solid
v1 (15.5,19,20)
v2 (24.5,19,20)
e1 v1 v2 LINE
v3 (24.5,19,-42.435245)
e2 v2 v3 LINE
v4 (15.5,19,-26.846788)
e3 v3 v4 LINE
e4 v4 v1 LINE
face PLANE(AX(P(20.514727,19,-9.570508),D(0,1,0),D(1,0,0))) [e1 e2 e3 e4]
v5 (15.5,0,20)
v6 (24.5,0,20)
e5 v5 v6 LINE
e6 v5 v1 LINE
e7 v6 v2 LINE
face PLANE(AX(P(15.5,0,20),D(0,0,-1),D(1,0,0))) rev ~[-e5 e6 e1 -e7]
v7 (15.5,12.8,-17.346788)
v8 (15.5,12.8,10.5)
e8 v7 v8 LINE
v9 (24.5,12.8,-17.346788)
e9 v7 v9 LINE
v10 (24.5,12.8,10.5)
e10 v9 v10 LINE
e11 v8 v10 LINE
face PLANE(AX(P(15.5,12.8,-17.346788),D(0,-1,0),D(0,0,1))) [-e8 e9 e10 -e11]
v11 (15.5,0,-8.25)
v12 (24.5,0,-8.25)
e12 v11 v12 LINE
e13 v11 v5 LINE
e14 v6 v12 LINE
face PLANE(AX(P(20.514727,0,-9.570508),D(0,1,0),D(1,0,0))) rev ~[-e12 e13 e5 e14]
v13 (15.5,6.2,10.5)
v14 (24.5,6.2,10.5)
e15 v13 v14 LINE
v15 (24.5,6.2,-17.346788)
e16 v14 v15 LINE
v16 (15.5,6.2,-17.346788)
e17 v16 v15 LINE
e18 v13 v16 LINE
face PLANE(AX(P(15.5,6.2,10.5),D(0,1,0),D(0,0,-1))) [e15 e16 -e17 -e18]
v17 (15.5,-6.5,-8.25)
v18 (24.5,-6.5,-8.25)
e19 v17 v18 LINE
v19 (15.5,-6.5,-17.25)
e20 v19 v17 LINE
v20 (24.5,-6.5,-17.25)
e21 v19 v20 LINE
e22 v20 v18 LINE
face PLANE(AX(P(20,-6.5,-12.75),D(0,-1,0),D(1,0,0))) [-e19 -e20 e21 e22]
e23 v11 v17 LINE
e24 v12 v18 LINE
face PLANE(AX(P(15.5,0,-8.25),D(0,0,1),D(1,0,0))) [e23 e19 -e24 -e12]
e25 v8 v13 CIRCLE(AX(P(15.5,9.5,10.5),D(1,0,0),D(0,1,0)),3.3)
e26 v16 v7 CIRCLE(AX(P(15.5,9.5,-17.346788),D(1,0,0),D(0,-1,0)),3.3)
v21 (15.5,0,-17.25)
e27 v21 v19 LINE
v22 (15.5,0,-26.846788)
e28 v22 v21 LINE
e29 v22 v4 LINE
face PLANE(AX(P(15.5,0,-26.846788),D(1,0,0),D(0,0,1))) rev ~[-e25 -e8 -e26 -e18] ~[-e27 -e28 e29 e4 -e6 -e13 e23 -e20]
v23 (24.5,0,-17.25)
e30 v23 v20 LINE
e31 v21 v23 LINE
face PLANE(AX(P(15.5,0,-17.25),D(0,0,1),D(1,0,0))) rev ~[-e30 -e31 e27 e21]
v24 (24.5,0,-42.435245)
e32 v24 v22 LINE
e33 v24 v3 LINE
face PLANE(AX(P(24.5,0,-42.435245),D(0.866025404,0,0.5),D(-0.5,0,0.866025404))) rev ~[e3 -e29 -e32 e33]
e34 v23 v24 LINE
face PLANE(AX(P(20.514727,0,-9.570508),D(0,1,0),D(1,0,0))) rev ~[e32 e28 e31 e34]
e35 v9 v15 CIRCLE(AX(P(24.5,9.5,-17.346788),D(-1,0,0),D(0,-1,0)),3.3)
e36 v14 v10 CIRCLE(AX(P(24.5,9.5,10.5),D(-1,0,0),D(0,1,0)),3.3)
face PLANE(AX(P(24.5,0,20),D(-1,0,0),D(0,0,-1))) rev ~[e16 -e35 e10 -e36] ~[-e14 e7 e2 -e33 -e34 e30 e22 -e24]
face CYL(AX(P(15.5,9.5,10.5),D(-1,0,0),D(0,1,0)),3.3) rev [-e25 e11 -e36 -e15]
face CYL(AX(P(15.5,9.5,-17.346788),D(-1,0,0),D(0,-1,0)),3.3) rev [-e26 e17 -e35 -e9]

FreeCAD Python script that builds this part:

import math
import FreeCAD as App
import Part
import Sketcher
Q = App.Units.Quantity

doc = App.newDocument("Part")
body = doc.addObject("PartDesign::Body", "Body")

# Sketch on XZ plane
sketch1 = body.newObject("Sketcher::SketchObject", "Sketch")
sketch1.AttachmentSupport = (doc.getObject("XZ_Plane"), [""])
sketch1.MapMode = "FlatFace"
sketch1.addGeometry(Part.LineSegment(App.Vector(16, -27, 0), App.Vector(16, 20, 0)), False)
sketch1.addGeometry(Part.LineSegment(App.Vector(16, 20, 0), App.Vector(24, 20, 0)), False)
sketch1.addGeometry(Part.LineSegment(App.Vector(24, 20, 0), App.Vector(24, -42, 0)), False)
sketch1.addGeometry(Part.LineSegment(App.Vector(24, -42, 0), App.Vector(16, -27, 0)), False)
sketch1.addConstraint(Sketcher.Constraint("Coincident", 0, 2, 1, 1))
sketch1.addConstraint(Sketcher.Constraint("Coincident", 1, 2, 2, 1))
sketch1.addConstraint(Sketcher.Constraint("Coincident", 2, 2, 3, 1))
sketch1.addConstraint(Sketcher.Constraint("Coincident", 3, 2, 0, 1))
sketch1.addConstraint(Sketcher.Constraint("Vertical", 0))
sketch1.addConstraint(Sketcher.Constraint("Horizontal", 1))
sketch1.addConstraint(Sketcher.Constraint("Vertical", 2))
sketch1.addConstraint(Sketcher.Constraint("DistanceX", 1, 1, 1, 2, Q("9 mm")))
sketch1.addConstraint(Sketcher.Constraint("Angle", 3, Q("120 deg")))
sketch1.addConstraint(Sketcher.Constraint("DistanceY", -1, 1, 0, 2, Q("20 mm")))
sketch1.addConstraint(Sketcher.Constraint("DistanceX", -1, 1, 0, 2, Q("15.5 mm")))
sketch1.addConstraint(Sketcher.Constraint("DistanceY", 0, 1, 0, 2, Q("46.846788 mm")))
pad1 = body.newObject("PartDesign::Pad", "Pad")
pad1.Profile = sketch1
pad1.Length = 19
pad1.Reversed = True

# Sketch on YZ plane
sketch2 = body.newObject("Sketcher::SketchObject", "Sketch001")
sketch2.AttachmentSupport = (doc.getObject("YZ_Plane"), [""])
sketch2.MapMode = "FlatFace"
sketch2.AttachmentOffset = App.Placement(App.Vector(0, 0, 15.5), App.Rotation())
sketch2.addGeometry(Part.LineSegment(App.Vector(12.8, 10.5, 0), App.Vector(12.8, -17.3, 0)), False)
sketch2.addGeometry(Part.ArcOfCircle(Part.Circle(App.Vector(9.5, -17.3, 0), App.Vector(0, 0, 1), 3.3), math.radians(180), math.radians(360)), False)
sketch2.addGeometry(Part.LineSegment(App.Vector(6.2, -17.3, 0), App.Vector(6.2, 10.5, 0)), False)
sketch2.addGeometry(Part.ArcOfCircle(Part.Circle(App.Vector(9.5, 10.5, 0), App.Vector(0, 0, 1), 3.3), math.radians(0), math.radians(180)), False)
sketch2.addConstraint(Sketcher.Constraint("Tangent", 0, 2, 1, 2))
sketch2.addConstraint(Sketcher.Constraint("Tangent", 1, 1, 2, 1))
sketch2.addConstraint(Sketcher.Constraint("Tangent", 2, 2, 3, 2))
sketch2.addConstraint(Sketcher.Constraint("Tangent", 3, 1, 0, 1))
sketch2.addConstraint(Sketcher.Constraint("Vertical", 0))
sketch2.addConstraint(Sketcher.Constraint("Vertical", 2))
sketch2.addConstraint(Sketcher.Constraint("Radius", 1, Q("3.3 mm")))
sketch2.addConstraint(Sketcher.Constraint("DistanceX", -1, 1, 1, 3, Q("9.5 mm")))
sketch2.addConstraint(Sketcher.Constraint("DistanceY", -1, 1, 3, 3, Q("10.5 mm")))
sketch2.addConstraint(Sketcher.Constraint("DistanceY", 0, 2, 0, 1, Q("27.846788 mm")))
pocket1 = body.newObject("PartDesign::Pocket", "Pocket")
pocket1.Profile = sketch2
pocket1.Type = "ThroughAll"
pocket1.Reversed = True

# Sketch on XZ plane
sketch3 = body.newObject("Sketcher::SketchObject", "Sketch002")
sketch3.AttachmentSupport = (doc.getObject("XZ_Plane"), [""])
sketch3.MapMode = "FlatFace"
sketch3.addGeometry(Part.LineSegment(App.Vector(16, -8, 0), App.Vector(16, -17, 0)), False)
sketch3.addGeometry(Part.LineSegment(App.Vector(16, -17, 0), App.Vector(24, -17, 0)), False)
sketch3.addGeometry(Part.LineSegment(App.Vector(24, -17, 0), App.Vector(24, -8, 0)), False)
sketch3.addGeometry(Part.LineSegment(App.Vector(24, -8, 0), App.Vector(16, -8, 0)), False)
sketch3.addConstraint(Sketcher.Constraint("Coincident", 0, 2, 1, 1))
sketch3.addConstraint(Sketcher.Constraint("Coincident", 1, 2, 2, 1))
sketch3.addConstraint(Sketcher.Constraint("Coincident", 2, 2, 3, 1))
sketch3.addConstraint(Sketcher.Constraint("Coincident", 3, 2, 0, 1))
sketch3.addConstraint(Sketcher.Constraint("Vertical", 0))
sketch3.addConstraint(Sketcher.Constraint("Horizontal", 1))
sketch3.addConstraint(Sketcher.Constraint("Vertical", 2))
sketch3.addConstraint(Sketcher.Constraint("Horizontal", 3))
sketch3.addConstraint(Sketcher.Constraint("Equal", 3, 0))
sketch3.addConstraint(Sketcher.Constraint("DistanceX", 1, 1, 1, 2, Q("9 mm")))
sketch3.addConstraint(Sketcher.Constraint("DistanceX", -1, 1, 0, 2, Q("15.5 mm")))
sketch3.addConstraint(Sketcher.Constraint("DistanceY", 0, 2, -1, 1, Q("17.25 mm")))
pad2 = body.newObject("PartDesign::Pad", "Pad001")
pad2.Profile = sketch3
pad2.Length = 6.5

doc.recompute()
